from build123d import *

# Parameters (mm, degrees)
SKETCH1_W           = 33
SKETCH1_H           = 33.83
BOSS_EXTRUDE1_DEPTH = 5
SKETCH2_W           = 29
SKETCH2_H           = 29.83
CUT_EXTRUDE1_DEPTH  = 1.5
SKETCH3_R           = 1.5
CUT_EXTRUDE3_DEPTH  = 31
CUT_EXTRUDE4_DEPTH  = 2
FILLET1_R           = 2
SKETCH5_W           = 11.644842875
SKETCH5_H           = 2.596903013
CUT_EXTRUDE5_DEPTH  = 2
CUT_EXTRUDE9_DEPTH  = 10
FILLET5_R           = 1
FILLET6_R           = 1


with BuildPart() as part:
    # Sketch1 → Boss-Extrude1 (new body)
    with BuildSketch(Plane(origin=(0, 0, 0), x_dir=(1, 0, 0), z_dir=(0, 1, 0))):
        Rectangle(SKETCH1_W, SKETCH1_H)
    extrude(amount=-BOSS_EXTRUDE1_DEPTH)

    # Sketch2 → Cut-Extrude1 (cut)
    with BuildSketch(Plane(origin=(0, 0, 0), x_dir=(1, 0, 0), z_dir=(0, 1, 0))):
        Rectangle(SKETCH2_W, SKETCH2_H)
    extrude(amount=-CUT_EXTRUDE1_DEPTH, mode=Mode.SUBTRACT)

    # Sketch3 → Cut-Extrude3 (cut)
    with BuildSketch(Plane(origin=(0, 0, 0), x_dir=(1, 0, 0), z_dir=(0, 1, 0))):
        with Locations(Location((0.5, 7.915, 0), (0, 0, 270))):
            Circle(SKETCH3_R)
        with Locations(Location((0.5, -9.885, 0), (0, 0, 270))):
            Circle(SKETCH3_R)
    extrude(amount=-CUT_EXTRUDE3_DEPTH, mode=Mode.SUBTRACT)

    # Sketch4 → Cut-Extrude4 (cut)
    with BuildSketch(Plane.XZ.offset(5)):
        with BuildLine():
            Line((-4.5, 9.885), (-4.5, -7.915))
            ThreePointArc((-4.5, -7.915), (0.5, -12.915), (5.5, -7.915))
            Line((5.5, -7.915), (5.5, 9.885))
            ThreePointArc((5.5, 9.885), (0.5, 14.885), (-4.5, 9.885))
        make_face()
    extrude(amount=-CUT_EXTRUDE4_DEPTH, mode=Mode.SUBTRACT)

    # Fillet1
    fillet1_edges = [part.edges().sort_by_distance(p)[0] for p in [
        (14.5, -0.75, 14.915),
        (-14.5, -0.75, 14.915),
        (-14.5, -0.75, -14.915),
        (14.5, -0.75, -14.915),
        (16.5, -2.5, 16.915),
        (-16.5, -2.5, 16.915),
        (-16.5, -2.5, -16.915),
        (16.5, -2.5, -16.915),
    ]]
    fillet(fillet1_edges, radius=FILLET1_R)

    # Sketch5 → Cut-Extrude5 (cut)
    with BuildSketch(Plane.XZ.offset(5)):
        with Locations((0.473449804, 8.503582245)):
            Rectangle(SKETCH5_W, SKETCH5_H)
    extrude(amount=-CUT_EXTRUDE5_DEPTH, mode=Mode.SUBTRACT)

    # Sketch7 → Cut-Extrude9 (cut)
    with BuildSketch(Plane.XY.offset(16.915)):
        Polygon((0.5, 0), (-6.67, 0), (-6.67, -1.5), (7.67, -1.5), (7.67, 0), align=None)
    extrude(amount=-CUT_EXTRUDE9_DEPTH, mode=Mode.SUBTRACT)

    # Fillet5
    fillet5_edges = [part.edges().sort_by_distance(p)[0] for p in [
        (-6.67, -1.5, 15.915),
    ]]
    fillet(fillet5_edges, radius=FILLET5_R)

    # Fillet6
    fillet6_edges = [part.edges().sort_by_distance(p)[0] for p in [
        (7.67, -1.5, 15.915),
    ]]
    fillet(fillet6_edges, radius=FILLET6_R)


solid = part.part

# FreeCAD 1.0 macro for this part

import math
import FreeCAD as App
import Part
import Sketcher
from FreeCAD import Vector
Q = App.Units.Quantity


def edges_at(feature, points):
    """Names of the edges that pass closest to the given points."""
    edges = feature.Shape.Edges
    near = lambda p: min(range(len(edges)), key=lambda i: edges[i].distToShape(Part.Vertex(*p))[0])
    return sorted({f"Edge{near(p) + 1}" for p in points})


def add_polygon(sketch, points):
    """Adds a closed chain of lines whose ends are joined by coincident constraints."""
    first, n = sketch.GeometryCount, len(points)
    for a, b in zip(points, points[1:] + points[:1]):
        sketch.addGeometry(Part.LineSegment(App.Vector(*a, 0), App.Vector(*b, 0)), False)
    for i in range(n):
        sketch.addConstraint(Sketcher.Constraint("Coincident", first + i, 2, first + (i + 1) % n, 1))

doc = App.newDocument("Part")
params = doc.addObject("Spreadsheet::Sheet", "Params")
for row, (alias, value) in enumerate([
    ("sketch1_width", "33 mm"),
    ("sketch1_height", "33.83 mm"),
    ("pad1_length", "5 mm"),
    ("sketch2_width", "29 mm"),
    ("sketch2_height", "29.83 mm"),
    ("pocket1_length", "1.5 mm"),
    ("sketch3_diameter", "3 mm"),
    ("pocket2_length", "31 mm"),
    ("sketch4_radius", "5 mm"),
    ("sketch4_height", "17.8 mm"),
    ("pocket3_length", "2 mm"),
    ("fillet_radius", "2 mm"),
    ("pocket4_length", "2 mm"),
    ("sketch6_height", "1.5 mm"),
    ("sketch6_width", "14.34 mm"),
    ("pocket5_length", "10 mm"),
    ("fillet2_radius", "1 mm"),
    ("fillet3_radius", "1 mm"),
], start=1):
    params.set(f"A{row}", alias)
    params.set(f"B{row}", "=" + value)
    params.setAlias(f"B{row}", alias)

body = doc.addObject("PartDesign::Body", "Body")

# Sketch on XZ plane
sketch1 = body.newObject("Sketcher::SketchObject", "Sketch")
sketch1.AttachmentSupport = (doc.getObject("XZ_Plane"), [""])
sketch1.MapMode = "FlatFace"
add_polygon(sketch1, [(-16, -17), (-16, 17), (16, 17), (16, -17)])  # lines 0-3
sketch1.addConstraint([
    Sketcher.Constraint("Vertical", 0),
    Sketcher.Constraint("Horizontal", 1),
    Sketcher.Constraint("Vertical", 2),
    Sketcher.Constraint("Horizontal", 3),
    Sketcher.Constraint("Symmetric", 0, 2, 2, 2, -1, 1),
    Sketcher.Constraint("DistanceX", 1, 1, 1, 2, Q("33 mm")),
    Sketcher.Constraint("DistanceY", 0, 1, 0, 2, Q("33.83 mm")),
])
sketch1.setExpression("Constraints[9]", "Params.sketch1_width")
sketch1.setExpression("Constraints[10]", "Params.sketch1_height")
pad1 = body.newObject("PartDesign::Pad", "Pad")
pad1.Profile = sketch1
pad1.setExpression("Length", "Params.pad1_length")

# Sketch on XZ plane
sketch2 = body.newObject("Sketcher::SketchObject", "Sketch001")
sketch2.AttachmentSupport = (doc.getObject("XZ_Plane"), [""])
sketch2.MapMode = "FlatFace"
add_polygon(sketch2, [(-14, -15), (-14, 15), (14, 15), (14, -15)])  # lines 0-3
sketch2.addConstraint([
    Sketcher.Constraint("Vertical", 0),
    Sketcher.Constraint("Horizontal", 1),
    Sketcher.Constraint("Vertical", 2),
    Sketcher.Constraint("Horizontal", 3),
    Sketcher.Constraint("Symmetric", 0, 2, 2, 2, -1, 1),
    Sketcher.Constraint("DistanceX", 1, 1, 1, 2, Q("29 mm")),
    Sketcher.Constraint("DistanceY", 0, 1, 0, 2, Q("29.83 mm")),
])
sketch2.setExpression("Constraints[9]", "Params.sketch2_width")
sketch2.setExpression("Constraints[10]", "Params.sketch2_height")
pocket1 = body.newObject("PartDesign::Pocket", "Pocket")
pocket1.Profile = sketch2
pocket1.setExpression("Length", "Params.pocket1_length")
pocket1.Reversed = True

# Sketch on XZ plane
sketch3 = body.newObject("Sketcher::SketchObject", "Sketch002")
sketch3.AttachmentSupport = (doc.getObject("XZ_Plane"), [""])
sketch3.MapMode = "FlatFace"
sketch3.addGeometry([
    Part.Circle(Vector(0.5, -7.9, 0), Vector(0, 0, 1), 1.5),
    Part.Circle(Vector(0.5, 9.9, 0), Vector(0, 0, 1), 1.5),
], False)
sketch3.addConstraint([
    Sketcher.Constraint("Equal", 0, 1),
    Sketcher.Constraint("Vertical", 0, 3, 1, 3),
    Sketcher.Constraint("Diameter", 0, Q("3 mm")),
    Sketcher.Constraint("DistanceX", -1, 1, 0, 3, Q("0.5 mm")),
    Sketcher.Constraint("DistanceY", 0, 3, 1, 3, Q("17.8 mm")),
    Sketcher.Constraint("DistanceY", 0, 3, -1, 1, Q("7.915 mm")),
])
sketch3.setExpression("Constraints[2]", "Params.sketch3_diameter")
pocket2 = body.newObject("PartDesign::Pocket", "Pocket001")
pocket2.Profile = sketch3
pocket2.setExpression("Length", "Params.pocket2_length")
pocket2.Reversed = True

# Sketch on XZ plane
sketch4 = body.newObject("Sketcher::SketchObject", "Sketch003")
sketch4.AttachmentSupport = (doc.getObject("XZ_Plane"), [""])
sketch4.MapMode = "FlatFace"
sketch4.AttachmentOffset = App.Placement(Vector(0, 0, 5), App.Rotation())
sketch4.addGeometry([
    Part.LineSegment(Vector(-4, 10, 0), Vector(-4, -8, 0)),
    Part.ArcOfCircle(Part.Circle(Vector(0, -8, 0), Vector(0, 0, 1), 5), math.radians(180), math.radians(360)),
    Part.LineSegment(Vector(6, -8, 0), Vector(6, 10, 0)),
    Part.ArcOfCircle(Part.Circle(Vector(0, 10, 0), Vector(0, 0, 1), 5), math.radians(0), math.radians(180)),
], False)
sketch4.addConstraint([
    Sketcher.Constraint("Tangent", 0, 2, 1, 1),
    Sketcher.Constraint("Tangent", 1, 2, 2, 1),
    Sketcher.Constraint("Tangent", 2, 2, 3, 1),
    Sketcher.Constraint("Tangent", 3, 2, 0, 1),
    Sketcher.Constraint("Vertical", 0),
    Sketcher.Constraint("Vertical", 2),
    Sketcher.Constraint("Radius", 1, Q("5 mm")),
    Sketcher.Constraint("DistanceY", 0, 2, 0, 1, Q("17.8 mm")),
    Sketcher.Constraint("DistanceX", -1, 1, 1, 3, Q("0.5 mm")),
    Sketcher.Constraint("DistanceY", 1, 3, -1, 1, Q("7.915 mm")),
])
sketch4.setExpression("Constraints[6]", "Params.sketch4_radius")
sketch4.setExpression("Constraints[7]", "Params.sketch4_height")
pocket3 = body.newObject("PartDesign::Pocket", "Pocket002")
pocket3.Profile = sketch4
pocket3.setExpression("Length", "Params.pocket3_length")
doc.recompute()

fillet = body.newObject("PartDesign::Fillet", "Fillet")
fillet.Base = (pocket3, edges_at(pocket3, [
    (14.5, -0.75, 14.915),
    (-14.5, -0.75, 14.915),
    (-14.5, -0.75, -14.915),
    (14.5, -0.75, -14.915),
    (16.5, -2.5, 16.915),
    (-16.5, -2.5, 16.915),
    (-16.5, -2.5, -16.915),
    (16.5, -2.5, -16.915),
]))
fillet.setExpression("Radius", "Params.fillet_radius")

# Sketch on XZ plane
sketch5 = body.newObject("Sketcher::SketchObject", "Sketch004")
sketch5.AttachmentSupport = (doc.getObject("XZ_Plane"), [""])
sketch5.MapMode = "FlatFace"
sketch5.AttachmentOffset = App.Placement(Vector(0, 0, 5), App.Rotation())
add_polygon(sketch5, [(-5.3, 9.8), (-5.3, 7.2), (6.3, 7.2), (6.3, 9.8)])  # lines 0-3
sketch5.addConstraint([
    Sketcher.Constraint("Vertical", 0),
    Sketcher.Constraint("Horizontal", 1),
    Sketcher.Constraint("Vertical", 2),
    Sketcher.Constraint("Horizontal", 3),
    Sketcher.Constraint("DistanceX", 1, 1, 1, 2, Q("11.644843 mm")),
    Sketcher.Constraint("DistanceY", 0, 2, 0, 1, Q("2.596903 mm")),
    Sketcher.Constraint("DistanceX", 0, 2, -1, 1, Q("5.348972 mm")),
    Sketcher.Constraint("DistanceY", -1, 1, 0, 2, Q("7.205131 mm")),
])
pocket4 = body.newObject("PartDesign::Pocket", "Pocket003")
pocket4.Profile = sketch5
pocket4.setExpression("Length", "Params.pocket4_length")

# Sketch on XY plane
sketch6 = body.newObject("Sketcher::SketchObject", "Sketch005")
sketch6.AttachmentSupport = (doc.getObject("XY_Plane"), [""])
sketch6.MapMode = "FlatFace"
sketch6.AttachmentOffset = App.Placement(Vector(0, 0, 16.915), App.Rotation())
add_polygon(sketch6, [(-6.7, 0), (-6.7, -1.5), (7.7, -1.5), (7.7, 0)])  # lines 0-3
sketch6.addConstraint([
    Sketcher.Constraint("Vertical", 0),
    Sketcher.Constraint("Horizontal", 1),
    Sketcher.Constraint("Vertical", 2),
    Sketcher.Constraint("Horizontal", 3),
    Sketcher.Constraint("PointOnObject", 2, 2, -1),
    Sketcher.Constraint("DistanceY", 0, 2, 0, 1, Q("1.5 mm")),
    Sketcher.Constraint("DistanceX", 1, 1, 1, 2, Q("14.34 mm")),
    Sketcher.Constraint("DistanceX", 0, 2, -1, 1, Q("6.67 mm")),
])
sketch6.setExpression("Constraints[9]", "Params.sketch6_height")
sketch6.setExpression("Constraints[10]", "Params.sketch6_width")
pocket5 = body.newObject("PartDesign::Pocket", "Pocket004")
pocket5.Profile = sketch6
pocket5.setExpression("Length", "Params.pocket5_length")
doc.recompute()

fillet2 = body.newObject("PartDesign::Fillet", "Fillet001")
fillet2.Base = (pocket5, edges_at(pocket5, [(-6.67, -1.5, 15.915)]))
fillet2.setExpression("Radius", "Params.fillet2_radius")
doc.recompute()

fillet3 = body.newObject("PartDesign::Fillet", "Fillet002")
fillet3.Base = (fillet2, edges_at(fillet2, [(7.67, -1.5, 15.915)]))
fillet3.setExpression("Radius", "Params.fillet3_radius")

doc.recompute()
